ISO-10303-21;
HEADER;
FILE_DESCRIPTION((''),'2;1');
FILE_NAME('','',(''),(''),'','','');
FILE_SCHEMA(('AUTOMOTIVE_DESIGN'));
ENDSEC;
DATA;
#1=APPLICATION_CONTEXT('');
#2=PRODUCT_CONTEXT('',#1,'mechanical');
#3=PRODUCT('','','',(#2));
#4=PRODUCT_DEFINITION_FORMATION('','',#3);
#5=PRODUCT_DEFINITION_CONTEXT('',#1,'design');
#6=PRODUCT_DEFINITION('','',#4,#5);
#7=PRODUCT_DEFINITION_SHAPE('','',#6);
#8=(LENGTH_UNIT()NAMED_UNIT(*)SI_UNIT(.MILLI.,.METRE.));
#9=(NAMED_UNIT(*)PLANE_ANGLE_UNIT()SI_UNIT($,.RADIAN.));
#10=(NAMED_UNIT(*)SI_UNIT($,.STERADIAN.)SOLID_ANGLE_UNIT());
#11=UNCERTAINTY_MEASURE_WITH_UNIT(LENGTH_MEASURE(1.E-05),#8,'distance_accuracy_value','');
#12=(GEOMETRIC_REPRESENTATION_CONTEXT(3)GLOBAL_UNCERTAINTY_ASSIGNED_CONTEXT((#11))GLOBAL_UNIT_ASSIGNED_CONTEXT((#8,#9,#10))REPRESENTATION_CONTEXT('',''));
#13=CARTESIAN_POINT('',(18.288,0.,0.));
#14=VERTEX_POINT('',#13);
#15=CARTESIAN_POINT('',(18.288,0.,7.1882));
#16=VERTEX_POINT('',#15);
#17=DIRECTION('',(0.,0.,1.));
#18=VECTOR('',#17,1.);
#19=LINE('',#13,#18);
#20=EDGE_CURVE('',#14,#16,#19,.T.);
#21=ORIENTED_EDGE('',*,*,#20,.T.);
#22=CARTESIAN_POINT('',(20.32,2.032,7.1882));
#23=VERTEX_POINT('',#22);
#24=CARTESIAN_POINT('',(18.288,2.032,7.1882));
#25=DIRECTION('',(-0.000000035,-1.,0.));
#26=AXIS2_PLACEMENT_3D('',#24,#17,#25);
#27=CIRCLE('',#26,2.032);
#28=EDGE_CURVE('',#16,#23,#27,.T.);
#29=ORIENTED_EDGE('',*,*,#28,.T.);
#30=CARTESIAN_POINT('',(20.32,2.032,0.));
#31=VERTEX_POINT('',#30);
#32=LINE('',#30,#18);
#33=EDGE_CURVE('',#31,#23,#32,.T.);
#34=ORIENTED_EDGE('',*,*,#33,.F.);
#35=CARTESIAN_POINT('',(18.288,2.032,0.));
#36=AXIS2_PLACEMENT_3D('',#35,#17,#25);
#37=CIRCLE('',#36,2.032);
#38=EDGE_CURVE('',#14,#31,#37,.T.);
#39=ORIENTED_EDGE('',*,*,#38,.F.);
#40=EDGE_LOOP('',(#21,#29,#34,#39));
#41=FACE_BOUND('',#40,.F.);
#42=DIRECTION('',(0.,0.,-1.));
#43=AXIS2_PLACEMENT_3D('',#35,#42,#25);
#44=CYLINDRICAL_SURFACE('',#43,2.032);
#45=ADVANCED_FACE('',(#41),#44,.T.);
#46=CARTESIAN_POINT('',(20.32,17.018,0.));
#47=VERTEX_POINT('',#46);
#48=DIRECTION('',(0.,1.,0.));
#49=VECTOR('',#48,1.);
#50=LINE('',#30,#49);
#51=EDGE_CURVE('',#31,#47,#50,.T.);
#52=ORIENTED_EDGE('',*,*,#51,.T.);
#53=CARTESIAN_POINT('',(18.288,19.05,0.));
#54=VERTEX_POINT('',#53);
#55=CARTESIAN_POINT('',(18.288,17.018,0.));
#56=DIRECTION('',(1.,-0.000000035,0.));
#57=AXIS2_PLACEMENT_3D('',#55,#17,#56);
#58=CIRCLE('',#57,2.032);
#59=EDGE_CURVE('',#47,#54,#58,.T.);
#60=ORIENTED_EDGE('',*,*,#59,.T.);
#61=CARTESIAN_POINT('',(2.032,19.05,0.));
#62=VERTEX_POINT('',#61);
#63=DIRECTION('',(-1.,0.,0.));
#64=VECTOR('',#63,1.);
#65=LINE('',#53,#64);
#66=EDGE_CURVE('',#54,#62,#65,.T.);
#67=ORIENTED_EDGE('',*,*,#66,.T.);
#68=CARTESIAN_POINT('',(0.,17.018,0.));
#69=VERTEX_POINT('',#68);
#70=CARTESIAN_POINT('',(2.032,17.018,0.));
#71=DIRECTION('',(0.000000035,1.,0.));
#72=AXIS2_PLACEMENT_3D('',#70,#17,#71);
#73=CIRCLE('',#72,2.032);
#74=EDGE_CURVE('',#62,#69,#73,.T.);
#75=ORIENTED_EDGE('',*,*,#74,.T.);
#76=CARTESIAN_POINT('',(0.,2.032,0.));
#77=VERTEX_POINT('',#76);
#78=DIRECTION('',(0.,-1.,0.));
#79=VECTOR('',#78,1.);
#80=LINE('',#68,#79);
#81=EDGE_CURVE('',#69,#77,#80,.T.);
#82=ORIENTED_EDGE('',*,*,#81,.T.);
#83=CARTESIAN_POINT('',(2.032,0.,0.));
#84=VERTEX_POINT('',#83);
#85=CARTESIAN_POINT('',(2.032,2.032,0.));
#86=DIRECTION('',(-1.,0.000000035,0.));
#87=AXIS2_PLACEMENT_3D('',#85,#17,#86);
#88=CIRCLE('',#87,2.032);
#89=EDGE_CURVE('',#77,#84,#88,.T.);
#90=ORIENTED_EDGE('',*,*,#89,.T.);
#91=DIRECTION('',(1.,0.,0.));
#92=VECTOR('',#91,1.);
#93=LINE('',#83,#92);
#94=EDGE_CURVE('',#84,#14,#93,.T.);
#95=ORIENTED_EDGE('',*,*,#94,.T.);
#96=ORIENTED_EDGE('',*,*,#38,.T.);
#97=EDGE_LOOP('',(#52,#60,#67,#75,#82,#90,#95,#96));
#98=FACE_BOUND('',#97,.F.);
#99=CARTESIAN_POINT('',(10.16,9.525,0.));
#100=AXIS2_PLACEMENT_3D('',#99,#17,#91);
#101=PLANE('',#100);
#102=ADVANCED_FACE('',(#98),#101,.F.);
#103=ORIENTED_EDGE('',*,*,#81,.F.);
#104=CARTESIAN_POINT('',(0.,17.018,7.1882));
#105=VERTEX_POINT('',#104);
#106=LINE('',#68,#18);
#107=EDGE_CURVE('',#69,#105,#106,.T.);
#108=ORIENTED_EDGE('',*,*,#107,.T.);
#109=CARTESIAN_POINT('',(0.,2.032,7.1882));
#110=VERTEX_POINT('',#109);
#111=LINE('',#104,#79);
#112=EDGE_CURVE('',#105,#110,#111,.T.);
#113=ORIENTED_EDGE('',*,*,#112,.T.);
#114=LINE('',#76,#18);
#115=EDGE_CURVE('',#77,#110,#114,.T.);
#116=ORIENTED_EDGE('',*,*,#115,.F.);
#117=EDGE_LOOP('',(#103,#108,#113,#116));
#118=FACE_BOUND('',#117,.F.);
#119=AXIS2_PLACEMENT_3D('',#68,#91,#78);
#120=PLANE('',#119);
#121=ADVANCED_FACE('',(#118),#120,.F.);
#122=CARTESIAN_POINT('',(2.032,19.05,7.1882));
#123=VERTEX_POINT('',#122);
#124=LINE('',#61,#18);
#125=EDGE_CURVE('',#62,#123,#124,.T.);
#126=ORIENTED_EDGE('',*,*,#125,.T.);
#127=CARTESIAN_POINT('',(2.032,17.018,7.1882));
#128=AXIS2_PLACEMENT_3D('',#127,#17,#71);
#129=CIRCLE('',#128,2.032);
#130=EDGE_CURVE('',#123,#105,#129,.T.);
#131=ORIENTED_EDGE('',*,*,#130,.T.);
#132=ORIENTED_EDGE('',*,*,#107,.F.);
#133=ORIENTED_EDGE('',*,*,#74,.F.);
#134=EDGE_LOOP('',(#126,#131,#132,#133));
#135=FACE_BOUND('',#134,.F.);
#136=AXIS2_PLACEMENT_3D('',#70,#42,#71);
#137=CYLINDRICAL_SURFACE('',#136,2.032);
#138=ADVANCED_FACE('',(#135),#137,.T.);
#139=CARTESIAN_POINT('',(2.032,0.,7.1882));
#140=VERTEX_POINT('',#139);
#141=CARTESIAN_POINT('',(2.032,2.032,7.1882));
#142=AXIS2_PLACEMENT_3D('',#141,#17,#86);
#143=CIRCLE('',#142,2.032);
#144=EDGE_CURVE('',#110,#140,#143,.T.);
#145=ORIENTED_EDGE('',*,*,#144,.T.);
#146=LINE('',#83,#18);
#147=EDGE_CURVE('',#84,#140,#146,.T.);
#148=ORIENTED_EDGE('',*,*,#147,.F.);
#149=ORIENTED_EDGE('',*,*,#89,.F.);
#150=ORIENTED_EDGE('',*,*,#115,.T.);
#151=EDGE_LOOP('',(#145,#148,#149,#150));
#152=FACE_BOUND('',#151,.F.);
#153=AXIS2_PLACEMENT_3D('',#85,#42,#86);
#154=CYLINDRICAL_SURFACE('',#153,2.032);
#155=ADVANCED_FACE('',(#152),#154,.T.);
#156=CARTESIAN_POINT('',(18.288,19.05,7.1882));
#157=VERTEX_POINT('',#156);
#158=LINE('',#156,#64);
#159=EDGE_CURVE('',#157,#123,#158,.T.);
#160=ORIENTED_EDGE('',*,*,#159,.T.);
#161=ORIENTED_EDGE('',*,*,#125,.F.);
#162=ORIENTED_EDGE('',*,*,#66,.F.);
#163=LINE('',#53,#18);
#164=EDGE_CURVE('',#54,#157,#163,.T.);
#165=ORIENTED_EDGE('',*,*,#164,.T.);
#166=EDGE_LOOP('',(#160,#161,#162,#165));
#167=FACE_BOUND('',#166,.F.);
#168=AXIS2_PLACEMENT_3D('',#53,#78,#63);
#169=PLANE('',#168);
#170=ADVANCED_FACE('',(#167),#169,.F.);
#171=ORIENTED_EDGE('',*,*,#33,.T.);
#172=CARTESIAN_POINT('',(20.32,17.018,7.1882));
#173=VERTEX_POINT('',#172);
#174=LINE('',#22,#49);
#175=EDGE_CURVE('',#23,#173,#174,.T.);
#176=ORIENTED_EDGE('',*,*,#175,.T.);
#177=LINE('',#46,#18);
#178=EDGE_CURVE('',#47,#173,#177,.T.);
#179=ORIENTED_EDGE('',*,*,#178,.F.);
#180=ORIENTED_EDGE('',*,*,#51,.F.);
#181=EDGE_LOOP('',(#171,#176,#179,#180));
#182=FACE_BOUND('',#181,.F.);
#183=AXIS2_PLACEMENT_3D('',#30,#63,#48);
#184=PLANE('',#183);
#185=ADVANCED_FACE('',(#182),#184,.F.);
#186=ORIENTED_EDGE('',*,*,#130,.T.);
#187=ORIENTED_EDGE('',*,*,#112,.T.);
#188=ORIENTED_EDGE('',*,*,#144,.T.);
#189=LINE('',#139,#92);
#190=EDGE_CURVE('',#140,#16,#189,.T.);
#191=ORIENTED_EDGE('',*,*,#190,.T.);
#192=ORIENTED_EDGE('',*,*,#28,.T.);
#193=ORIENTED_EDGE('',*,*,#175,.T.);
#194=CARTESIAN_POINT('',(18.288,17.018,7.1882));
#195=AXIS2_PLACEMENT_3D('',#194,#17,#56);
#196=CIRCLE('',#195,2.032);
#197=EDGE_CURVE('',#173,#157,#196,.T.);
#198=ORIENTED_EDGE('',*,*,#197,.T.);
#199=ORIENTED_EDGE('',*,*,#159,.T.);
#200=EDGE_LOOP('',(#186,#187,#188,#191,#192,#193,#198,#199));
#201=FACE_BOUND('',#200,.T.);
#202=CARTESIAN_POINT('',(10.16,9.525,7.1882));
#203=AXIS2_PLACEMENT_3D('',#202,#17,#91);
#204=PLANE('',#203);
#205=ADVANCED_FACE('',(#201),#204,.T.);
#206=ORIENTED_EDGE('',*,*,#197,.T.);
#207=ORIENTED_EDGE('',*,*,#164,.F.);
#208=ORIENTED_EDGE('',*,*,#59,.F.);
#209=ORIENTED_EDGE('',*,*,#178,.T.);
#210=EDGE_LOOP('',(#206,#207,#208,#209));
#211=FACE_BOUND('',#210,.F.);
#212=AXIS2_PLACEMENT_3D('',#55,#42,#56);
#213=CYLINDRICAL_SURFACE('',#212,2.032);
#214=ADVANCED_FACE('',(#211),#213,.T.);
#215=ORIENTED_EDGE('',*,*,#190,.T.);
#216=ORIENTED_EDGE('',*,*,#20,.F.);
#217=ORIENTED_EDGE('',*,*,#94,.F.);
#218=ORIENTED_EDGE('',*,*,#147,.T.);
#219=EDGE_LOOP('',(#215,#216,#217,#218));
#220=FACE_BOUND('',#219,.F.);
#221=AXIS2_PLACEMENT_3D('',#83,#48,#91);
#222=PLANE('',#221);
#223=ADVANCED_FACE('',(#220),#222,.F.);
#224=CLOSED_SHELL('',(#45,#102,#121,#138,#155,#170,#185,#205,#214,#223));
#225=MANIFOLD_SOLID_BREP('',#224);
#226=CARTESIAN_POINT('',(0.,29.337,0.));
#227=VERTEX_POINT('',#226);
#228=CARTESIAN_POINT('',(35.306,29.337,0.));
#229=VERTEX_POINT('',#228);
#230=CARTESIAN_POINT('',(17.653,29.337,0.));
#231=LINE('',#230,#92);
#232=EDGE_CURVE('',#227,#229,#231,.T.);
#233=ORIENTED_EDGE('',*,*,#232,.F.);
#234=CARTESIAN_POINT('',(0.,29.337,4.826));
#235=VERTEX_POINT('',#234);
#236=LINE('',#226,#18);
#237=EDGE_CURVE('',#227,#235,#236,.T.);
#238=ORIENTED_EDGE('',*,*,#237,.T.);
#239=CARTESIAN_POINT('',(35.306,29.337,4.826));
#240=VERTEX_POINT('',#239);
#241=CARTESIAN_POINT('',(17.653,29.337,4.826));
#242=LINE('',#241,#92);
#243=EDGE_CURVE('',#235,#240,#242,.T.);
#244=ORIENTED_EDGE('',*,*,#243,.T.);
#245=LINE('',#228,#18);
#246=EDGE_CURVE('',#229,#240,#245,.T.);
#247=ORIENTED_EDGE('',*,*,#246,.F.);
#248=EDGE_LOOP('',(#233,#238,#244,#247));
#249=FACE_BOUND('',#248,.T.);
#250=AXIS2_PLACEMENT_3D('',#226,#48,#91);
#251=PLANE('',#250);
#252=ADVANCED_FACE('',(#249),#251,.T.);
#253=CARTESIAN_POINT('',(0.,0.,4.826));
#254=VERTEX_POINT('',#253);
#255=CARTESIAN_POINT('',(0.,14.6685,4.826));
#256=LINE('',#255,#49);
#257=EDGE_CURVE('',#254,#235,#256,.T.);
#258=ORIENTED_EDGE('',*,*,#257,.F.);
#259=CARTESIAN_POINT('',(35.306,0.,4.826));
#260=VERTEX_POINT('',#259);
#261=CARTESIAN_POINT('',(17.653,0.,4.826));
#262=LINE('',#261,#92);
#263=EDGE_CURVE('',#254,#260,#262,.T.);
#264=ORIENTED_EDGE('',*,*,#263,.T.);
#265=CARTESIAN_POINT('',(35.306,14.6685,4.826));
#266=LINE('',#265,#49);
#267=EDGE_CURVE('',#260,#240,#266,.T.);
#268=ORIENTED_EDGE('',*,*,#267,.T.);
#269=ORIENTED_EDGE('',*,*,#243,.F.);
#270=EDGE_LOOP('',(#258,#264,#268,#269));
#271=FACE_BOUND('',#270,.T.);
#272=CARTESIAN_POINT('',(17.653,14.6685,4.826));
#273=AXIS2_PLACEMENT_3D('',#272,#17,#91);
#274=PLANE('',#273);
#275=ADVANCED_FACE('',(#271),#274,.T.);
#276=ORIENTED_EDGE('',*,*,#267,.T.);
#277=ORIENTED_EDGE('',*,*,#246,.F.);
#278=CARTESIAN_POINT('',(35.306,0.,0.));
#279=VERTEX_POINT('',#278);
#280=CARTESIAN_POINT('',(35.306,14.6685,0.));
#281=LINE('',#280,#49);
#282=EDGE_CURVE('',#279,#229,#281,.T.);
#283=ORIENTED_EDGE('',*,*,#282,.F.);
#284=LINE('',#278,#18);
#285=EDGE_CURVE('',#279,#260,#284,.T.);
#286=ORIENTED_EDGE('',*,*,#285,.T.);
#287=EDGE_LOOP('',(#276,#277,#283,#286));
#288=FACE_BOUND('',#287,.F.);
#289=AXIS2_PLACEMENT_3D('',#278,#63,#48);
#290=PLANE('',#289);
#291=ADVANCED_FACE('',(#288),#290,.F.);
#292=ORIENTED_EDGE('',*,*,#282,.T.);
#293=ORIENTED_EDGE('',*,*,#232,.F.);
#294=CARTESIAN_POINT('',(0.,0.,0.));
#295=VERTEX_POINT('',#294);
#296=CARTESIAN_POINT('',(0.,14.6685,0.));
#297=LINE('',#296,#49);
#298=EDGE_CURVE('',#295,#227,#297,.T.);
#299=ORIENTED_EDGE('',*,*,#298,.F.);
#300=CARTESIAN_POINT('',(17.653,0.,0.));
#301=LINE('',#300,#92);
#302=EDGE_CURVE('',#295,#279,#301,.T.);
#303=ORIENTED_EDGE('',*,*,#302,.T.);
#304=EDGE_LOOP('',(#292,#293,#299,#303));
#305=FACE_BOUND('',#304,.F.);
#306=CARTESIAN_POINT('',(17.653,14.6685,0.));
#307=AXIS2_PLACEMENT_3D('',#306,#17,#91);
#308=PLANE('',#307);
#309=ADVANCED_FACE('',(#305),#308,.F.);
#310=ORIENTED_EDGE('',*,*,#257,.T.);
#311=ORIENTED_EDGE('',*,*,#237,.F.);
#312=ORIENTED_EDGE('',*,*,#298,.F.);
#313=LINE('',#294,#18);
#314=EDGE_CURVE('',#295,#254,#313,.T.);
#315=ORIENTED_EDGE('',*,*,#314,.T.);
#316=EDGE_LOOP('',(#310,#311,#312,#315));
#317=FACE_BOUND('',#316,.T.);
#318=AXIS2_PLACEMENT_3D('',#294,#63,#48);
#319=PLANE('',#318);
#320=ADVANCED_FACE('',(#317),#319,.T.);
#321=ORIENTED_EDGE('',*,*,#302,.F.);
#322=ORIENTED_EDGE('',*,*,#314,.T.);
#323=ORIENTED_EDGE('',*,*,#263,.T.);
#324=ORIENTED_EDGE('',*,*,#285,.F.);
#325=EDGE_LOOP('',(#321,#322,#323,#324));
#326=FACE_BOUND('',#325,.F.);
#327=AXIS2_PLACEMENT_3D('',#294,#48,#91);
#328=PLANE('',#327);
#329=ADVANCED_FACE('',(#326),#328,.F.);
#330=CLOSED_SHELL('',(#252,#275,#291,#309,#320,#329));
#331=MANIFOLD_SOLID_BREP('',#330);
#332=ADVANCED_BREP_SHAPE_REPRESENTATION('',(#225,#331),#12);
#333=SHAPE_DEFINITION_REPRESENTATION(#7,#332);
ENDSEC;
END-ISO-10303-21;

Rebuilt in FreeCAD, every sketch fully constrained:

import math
import FreeCAD as App
import Part
import Sketcher

V = App.Vector
Q = App.Units.Quantity

doc = App.newDocument("Part")
body = doc.addObject("PartDesign::Body", "Body")

# Sketch on XY plane
sketch1 = body.newObject("Sketcher::SketchObject", "Sketch")
sketch1.AttachmentSupport = (doc.getObject("XY_Plane"), [""])
sketch1.MapMode = "FlatFace"
sketch1.addGeometry(Part.LineSegment(V(0, 29, 0), V(0, 0, 0)), False)
sketch1.addGeometry(Part.LineSegment(V(0, 0, 0), V(35, 0, 0)), False)
sketch1.addGeometry(Part.LineSegment(V(35, 0, 0), V(35, 29, 0)), False)
sketch1.addGeometry(Part.LineSegment(V(35, 29, 0), V(0, 29, 0)), False)
sketch1.addConstraint(Sketcher.Constraint("Coincident", 0, 2, 1, 1))
sketch1.addConstraint(Sketcher.Constraint("Coincident", 1, 2, 2, 1))
sketch1.addConstraint(Sketcher.Constraint("Coincident", 2, 2, 3, 1))
sketch1.addConstraint(Sketcher.Constraint("Coincident", 3, 2, 0, 1))
sketch1.addConstraint(Sketcher.Constraint("Vertical", 0))
sketch1.addConstraint(Sketcher.Constraint("Horizontal", 1))
sketch1.addConstraint(Sketcher.Constraint("Vertical", 2))
sketch1.addConstraint(Sketcher.Constraint("Horizontal", 3))
sketch1.addConstraint(Sketcher.Constraint("Coincident", 0, 2, -1, 1))
sketch1.addConstraint(Sketcher.Constraint("DistanceX", 1, 1, 1, 2, Q("1.39 in")))
sketch1.addConstraint(Sketcher.Constraint("DistanceY", 0, 2, 0, 1, Q("1.155 in")))
pad1 = body.newObject("PartDesign::Pad", "Pad")
pad1.Profile = sketch1
pad1.Length = Q("0.19 in")
body2 = doc.addObject("PartDesign::Body", "Body001")

# Sketch on XY plane
sketch2 = body2.newObject("Sketcher::SketchObject", "Sketch001")
sketch2.AttachmentSupport = (doc.getObject("XY_Plane001"), [""])
sketch2.MapMode = "FlatFace"
sketch2.addGeometry(Part.ArcOfCircle(Part.Circle(V(2, 2, 0), V(0, 0, 1), 2), math.radians(180), math.radians(270)), False)
sketch2.addGeometry(Part.LineSegment(V(2, 0, 0), V(18.3, 0, 0)), False)
sketch2.addGeometry(Part.ArcOfCircle(Part.Circle(V(18.3, 2, 0), V(0, 0, 1), 2), math.radians(-90), math.radians(0)), False)
sketch2.addGeometry(Part.LineSegment(V(20.3, 2, 0), V(20.3, 17, 0)), False)
sketch2.addGeometry(Part.ArcOfCircle(Part.Circle(V(18.3, 17, 0), V(0, 0, 1), 2), math.radians(0), math.radians(90)), False)
sketch2.addGeometry(Part.LineSegment(V(18.3, 19.1, 0), V(2, 19.1, 0)), False)
sketch2.addGeometry(Part.ArcOfCircle(Part.Circle(V(2, 17, 0), V(0, 0, 1), 2), math.radians(90), math.radians(180)), False)
sketch2.addGeometry(Part.LineSegment(V(0, 17, 0), V(0, 2, 0)), False)
sketch2.addConstraint(Sketcher.Constraint("Tangent", 0, 2, 1, 1))
sketch2.addConstraint(Sketcher.Constraint("Tangent", 1, 2, 2, 1))
sketch2.addConstraint(Sketcher.Constraint("Tangent", 2, 2, 3, 1))
sketch2.addConstraint(Sketcher.Constraint("Tangent", 3, 2, 4, 1))
sketch2.addConstraint(Sketcher.Constraint("Tangent", 4, 2, 5, 1))
sketch2.addConstraint(Sketcher.Constraint("Tangent", 5, 2, 6, 1))
sketch2.addConstraint(Sketcher.Constraint("Tangent", 6, 2, 7, 1))
sketch2.addConstraint(Sketcher.Constraint("Tangent", 7, 2, 0, 1))
sketch2.addConstraint(Sketcher.Constraint("Horizontal", 1))
sketch2.addConstraint(Sketcher.Constraint("Vertical", 3))
sketch2.addConstraint(Sketcher.Constraint("Horizontal", 5))
sketch2.addConstraint(Sketcher.Constraint("Vertical", 7))
sketch2.addConstraint(Sketcher.Constraint("Equal", 0, 2))
sketch2.addConstraint(Sketcher.Constraint("Equal", 2, 4))
sketch2.addConstraint(Sketcher.Constraint("Equal", 4, 6))
sketch2.addConstraint(Sketcher.Constraint("PointOnObject", 0, 2, -1))
sketch2.addConstraint(Sketcher.Constraint("PointOnObject", 6, 2, -2))
sketch2.addConstraint(Sketcher.Constraint("Radius", 0, Q("0.08 in")))
sketch2.addConstraint(Sketcher.Constraint("DistanceX", 1, 1, 1, 2, Q("0.64 in")))
sketch2.addConstraint(Sketcher.Constraint("DistanceY", 3, 1, 3, 2, Q("0.59 in")))
pad2 = body2.newObject("PartDesign::Pad", "Pad001")
pad2.Profile = sketch2
pad2.Length = Q("0.283 in")

doc.recompute()
